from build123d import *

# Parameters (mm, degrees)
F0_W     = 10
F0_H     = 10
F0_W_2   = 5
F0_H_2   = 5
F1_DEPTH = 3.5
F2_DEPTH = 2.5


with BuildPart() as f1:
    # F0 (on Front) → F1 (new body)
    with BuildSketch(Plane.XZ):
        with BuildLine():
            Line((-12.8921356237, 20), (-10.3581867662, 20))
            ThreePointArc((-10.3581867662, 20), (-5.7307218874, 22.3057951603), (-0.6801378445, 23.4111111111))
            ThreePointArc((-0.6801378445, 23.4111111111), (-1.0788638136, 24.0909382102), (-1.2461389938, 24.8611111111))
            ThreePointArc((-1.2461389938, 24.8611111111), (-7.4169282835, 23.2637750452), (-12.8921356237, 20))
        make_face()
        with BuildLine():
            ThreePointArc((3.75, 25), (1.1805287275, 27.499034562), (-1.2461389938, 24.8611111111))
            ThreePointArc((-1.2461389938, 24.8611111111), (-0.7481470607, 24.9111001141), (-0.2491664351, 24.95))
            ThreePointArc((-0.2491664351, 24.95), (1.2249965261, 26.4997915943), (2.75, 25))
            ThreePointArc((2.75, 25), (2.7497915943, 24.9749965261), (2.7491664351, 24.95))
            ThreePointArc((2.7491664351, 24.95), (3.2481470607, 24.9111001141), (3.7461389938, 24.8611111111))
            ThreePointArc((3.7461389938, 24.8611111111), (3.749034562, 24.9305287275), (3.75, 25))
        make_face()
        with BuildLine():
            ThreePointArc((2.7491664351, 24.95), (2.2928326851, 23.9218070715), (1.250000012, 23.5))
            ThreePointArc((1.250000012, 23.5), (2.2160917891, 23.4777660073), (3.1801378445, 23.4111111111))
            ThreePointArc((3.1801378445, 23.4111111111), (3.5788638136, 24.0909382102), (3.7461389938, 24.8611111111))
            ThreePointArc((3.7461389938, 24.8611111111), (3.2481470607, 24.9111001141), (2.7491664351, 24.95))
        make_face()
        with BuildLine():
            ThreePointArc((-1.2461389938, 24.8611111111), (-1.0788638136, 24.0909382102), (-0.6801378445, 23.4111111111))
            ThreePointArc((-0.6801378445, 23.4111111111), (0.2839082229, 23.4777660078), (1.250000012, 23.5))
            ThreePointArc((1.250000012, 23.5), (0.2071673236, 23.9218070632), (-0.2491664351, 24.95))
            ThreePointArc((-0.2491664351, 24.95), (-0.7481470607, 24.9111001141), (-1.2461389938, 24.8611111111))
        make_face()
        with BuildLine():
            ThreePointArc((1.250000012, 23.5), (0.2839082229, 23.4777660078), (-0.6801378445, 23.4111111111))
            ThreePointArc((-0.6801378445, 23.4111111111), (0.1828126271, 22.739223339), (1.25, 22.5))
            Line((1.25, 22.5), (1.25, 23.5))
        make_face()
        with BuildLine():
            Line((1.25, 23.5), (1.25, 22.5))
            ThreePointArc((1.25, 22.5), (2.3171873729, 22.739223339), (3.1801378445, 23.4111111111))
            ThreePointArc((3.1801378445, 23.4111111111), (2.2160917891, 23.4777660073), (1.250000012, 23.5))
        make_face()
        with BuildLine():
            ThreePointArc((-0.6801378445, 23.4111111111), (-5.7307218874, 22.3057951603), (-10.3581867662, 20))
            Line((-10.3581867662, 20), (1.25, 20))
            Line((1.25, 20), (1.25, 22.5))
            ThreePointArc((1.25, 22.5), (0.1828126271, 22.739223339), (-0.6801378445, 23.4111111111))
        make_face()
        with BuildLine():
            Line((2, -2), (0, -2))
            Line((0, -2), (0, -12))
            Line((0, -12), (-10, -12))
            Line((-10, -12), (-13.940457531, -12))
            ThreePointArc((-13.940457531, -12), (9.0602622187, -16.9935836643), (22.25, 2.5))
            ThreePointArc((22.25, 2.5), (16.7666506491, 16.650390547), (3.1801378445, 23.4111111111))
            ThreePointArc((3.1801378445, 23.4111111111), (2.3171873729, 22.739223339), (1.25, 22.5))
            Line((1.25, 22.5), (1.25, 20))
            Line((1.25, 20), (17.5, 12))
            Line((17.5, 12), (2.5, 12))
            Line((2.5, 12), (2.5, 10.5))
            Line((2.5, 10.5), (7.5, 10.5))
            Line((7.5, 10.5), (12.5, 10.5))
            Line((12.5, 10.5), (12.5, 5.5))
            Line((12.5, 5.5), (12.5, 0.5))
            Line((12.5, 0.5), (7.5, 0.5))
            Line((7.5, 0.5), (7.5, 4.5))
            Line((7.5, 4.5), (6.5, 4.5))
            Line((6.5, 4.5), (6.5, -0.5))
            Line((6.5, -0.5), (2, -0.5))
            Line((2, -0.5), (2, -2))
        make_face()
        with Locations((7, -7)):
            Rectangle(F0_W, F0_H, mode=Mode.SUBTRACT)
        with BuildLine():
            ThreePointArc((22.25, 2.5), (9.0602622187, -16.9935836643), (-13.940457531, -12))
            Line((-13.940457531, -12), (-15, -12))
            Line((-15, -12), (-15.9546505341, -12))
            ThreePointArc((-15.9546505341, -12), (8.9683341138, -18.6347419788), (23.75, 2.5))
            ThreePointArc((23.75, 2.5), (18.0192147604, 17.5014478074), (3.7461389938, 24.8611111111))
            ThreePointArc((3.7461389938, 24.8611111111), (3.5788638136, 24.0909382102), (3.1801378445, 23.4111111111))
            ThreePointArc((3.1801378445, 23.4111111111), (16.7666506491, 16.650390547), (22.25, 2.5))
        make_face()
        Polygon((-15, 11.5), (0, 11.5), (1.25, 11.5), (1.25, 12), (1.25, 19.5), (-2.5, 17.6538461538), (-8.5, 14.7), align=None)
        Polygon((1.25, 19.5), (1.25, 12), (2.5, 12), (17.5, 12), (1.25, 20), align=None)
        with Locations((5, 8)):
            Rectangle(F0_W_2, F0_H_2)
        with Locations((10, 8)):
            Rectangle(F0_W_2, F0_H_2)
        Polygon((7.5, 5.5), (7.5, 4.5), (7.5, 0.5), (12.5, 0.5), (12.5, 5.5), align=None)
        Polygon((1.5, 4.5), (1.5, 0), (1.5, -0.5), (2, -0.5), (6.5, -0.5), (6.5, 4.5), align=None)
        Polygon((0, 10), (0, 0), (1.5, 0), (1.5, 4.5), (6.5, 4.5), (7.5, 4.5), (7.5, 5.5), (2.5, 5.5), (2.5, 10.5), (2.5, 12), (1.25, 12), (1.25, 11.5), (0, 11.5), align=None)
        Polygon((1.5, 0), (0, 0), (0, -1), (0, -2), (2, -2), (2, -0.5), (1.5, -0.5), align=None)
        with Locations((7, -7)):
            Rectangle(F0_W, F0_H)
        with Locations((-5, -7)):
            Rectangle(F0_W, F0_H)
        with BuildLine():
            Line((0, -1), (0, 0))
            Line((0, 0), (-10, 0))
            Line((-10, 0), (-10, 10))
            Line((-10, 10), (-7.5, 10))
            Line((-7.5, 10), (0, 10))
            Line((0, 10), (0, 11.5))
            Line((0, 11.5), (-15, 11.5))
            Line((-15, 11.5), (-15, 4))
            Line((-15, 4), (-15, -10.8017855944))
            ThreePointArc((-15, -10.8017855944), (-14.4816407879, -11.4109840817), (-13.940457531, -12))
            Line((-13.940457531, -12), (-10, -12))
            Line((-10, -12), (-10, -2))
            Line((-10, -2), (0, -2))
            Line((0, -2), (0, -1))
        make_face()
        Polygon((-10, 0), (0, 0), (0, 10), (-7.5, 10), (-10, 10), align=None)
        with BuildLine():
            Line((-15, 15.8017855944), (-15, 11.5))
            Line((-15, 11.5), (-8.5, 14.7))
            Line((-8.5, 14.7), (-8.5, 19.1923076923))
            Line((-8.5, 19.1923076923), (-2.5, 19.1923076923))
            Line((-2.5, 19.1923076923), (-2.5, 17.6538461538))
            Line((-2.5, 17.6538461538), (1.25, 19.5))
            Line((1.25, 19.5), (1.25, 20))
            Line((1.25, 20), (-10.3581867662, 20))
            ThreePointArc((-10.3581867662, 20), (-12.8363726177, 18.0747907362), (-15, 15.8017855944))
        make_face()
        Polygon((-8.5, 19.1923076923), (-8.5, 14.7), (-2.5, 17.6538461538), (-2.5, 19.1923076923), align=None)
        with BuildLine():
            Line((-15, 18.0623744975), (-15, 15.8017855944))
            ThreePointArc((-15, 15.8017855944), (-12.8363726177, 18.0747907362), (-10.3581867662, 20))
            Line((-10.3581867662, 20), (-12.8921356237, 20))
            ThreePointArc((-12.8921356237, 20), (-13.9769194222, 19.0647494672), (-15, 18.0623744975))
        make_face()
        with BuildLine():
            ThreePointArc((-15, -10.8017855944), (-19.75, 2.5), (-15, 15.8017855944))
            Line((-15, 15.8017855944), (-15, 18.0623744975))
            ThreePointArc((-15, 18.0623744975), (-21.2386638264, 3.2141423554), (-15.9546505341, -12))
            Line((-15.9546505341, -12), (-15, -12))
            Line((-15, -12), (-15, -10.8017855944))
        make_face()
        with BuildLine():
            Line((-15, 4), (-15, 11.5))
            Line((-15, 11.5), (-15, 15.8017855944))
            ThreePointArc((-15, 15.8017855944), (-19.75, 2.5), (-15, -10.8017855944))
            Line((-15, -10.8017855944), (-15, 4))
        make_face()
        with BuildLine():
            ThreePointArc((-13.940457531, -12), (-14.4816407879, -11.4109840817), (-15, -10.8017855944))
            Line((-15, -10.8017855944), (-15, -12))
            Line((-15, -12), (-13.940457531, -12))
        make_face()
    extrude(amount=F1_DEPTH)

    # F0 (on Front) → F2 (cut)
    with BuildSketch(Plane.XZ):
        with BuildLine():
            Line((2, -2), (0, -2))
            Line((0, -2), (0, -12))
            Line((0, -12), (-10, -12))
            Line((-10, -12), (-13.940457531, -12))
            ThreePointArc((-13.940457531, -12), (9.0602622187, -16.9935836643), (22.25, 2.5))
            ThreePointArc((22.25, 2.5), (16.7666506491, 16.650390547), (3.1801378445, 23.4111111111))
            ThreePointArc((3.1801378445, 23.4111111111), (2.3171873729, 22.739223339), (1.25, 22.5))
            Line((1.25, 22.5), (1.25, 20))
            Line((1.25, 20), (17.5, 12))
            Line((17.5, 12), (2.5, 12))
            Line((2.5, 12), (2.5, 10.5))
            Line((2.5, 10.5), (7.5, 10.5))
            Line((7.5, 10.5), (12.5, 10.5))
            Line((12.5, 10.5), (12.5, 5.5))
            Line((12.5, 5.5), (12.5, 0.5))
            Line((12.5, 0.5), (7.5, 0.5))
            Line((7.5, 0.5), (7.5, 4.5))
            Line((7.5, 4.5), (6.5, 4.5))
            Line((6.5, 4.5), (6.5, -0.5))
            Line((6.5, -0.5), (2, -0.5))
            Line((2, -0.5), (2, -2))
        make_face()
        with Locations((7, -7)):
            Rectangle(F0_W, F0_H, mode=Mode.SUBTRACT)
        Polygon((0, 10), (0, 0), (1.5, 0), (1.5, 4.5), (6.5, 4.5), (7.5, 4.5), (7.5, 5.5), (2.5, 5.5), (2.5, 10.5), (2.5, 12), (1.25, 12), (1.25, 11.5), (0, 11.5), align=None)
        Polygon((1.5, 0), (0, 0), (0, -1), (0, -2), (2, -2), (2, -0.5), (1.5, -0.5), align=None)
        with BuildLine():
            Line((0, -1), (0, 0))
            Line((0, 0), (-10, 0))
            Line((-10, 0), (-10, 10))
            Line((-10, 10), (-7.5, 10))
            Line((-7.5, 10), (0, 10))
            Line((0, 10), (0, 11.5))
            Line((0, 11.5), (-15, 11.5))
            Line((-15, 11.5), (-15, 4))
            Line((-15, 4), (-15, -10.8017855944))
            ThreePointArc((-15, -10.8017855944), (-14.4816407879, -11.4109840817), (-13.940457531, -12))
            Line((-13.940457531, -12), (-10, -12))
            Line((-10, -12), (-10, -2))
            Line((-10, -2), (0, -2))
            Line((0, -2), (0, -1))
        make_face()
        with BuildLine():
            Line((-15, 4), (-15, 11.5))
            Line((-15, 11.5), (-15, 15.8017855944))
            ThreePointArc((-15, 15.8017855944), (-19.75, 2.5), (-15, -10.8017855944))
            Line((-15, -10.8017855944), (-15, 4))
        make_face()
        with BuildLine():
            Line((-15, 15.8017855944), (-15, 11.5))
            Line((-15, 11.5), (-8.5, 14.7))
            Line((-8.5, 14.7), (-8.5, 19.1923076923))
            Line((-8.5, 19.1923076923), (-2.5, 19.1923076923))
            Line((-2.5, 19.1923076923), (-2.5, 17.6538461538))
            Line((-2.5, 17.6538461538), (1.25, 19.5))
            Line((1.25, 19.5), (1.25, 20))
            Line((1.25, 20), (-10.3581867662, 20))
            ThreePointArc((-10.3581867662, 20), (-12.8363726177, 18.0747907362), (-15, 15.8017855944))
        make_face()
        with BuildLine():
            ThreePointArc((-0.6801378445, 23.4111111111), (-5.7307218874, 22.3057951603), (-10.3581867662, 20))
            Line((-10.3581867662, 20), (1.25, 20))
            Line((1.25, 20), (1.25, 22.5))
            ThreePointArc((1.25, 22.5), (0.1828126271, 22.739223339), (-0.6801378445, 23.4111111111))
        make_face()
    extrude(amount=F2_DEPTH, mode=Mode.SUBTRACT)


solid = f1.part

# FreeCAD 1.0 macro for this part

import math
import FreeCAD as App
import Part
import Sketcher
from FreeCAD import Vector

doc = App.newDocument("Part")
body = doc.addObject("PartDesign::Body", "Body")

# Sketch on XZ plane
sketch1 = body.newObject("Sketcher::SketchObject", "Sketch")
sketch1.AttachmentSupport = (doc.getObject("XZ_Plane"), [""])
sketch1.MapMode = "FlatFace"
sketch1.addGeometry([
    Part.ArcOfCircle(Part.Circle(Vector(1.25, 2.5, 0), Vector(0, 0, 1), 22.5), math.radians(128.94), math.radians(136.24)),  # 0
    Part.ArcOfCircle(Part.Circle(Vector(1.25, 2.5, 0), Vector(0, 0, 1), 22.5), math.radians(136), math.radians(220)),  # 1
    Part.ArcOfCircle(Part.Circle(Vector(1.25, 2.5, 0), Vector(0, 0, 1), 22.5), math.radians(-140), math.radians(84)),  # 2
    Part.ArcOfCircle(Part.Circle(Vector(1.25, 25, 0), Vector(0, 0, 1), 2.5), math.radians(-3.18), math.radians(0)),  # 3
    Part.ArcOfCircle(Part.Circle(Vector(1.25, 25, 0), Vector(0, 0, 1), 2.5), math.radians(0), math.radians(183)),  # 4
    Part.ArcOfCircle(Part.Circle(Vector(1.25, 2.5, 0), Vector(0, 0, 1), 22.5), math.radians(96), math.radians(129)),  # 5
    Part.ArcOfCircle(Part.Circle(Vector(1.25, 25, 0), Vector(0, 0, 1), 1.5), math.radians(-90), math.radians(-2)),  # 6
    Part.ArcOfCircle(Part.Circle(Vector(1.25, 25, 0), Vector(0, 0, 1), 1.5), math.radians(-178), math.radians(-90)),  # 7
    Part.ArcOfCircle(Part.Circle(Vector(1.25, 25, 0), Vector(0, 0, 1), 1.5), math.radians(0), math.radians(182)),  # 8
    Part.ArcOfCircle(Part.Circle(Vector(1.25, 25, 0), Vector(0, 0, 1), 1.5), math.radians(-1.91), math.radians(0)),  # 9
], False)
sketch1.addConstraint([
    Sketcher.Constraint("Tangent", 0, 2, 1, 1),
    Sketcher.Constraint("Tangent", 1, 2, 2, 1),
    Sketcher.Constraint("Coincident", 2, 2, 3, 1),
    Sketcher.Constraint("Tangent", 3, 2, 4, 1),
    Sketcher.Constraint("Coincident", 4, 2, 5, 1),
    Sketcher.Constraint("Tangent", 5, 2, 0, 1),
    Sketcher.Constraint("Tangent", 6, 1, 7, 2),
    Sketcher.Constraint("Tangent", 7, 1, 8, 2),
    Sketcher.Constraint("Tangent", 8, 1, 9, 2),
    Sketcher.Constraint("Tangent", 9, 1, 6, 2),
    Sketcher.Constraint("Coincident", 2, 3, 0, 3),
    Sketcher.Constraint("Coincident", 6, 3, 3, 3),
    Sketcher.Constraint("Equal", 3, 4),
    Sketcher.Constraint("Equal", 2, 5),
    Sketcher.Constraint("Equal", 6, 7),
    Sketcher.Constraint("Horizontal", 9, 3, 3, 2),
    Sketcher.Constraint("Horizontal", 2, 2, 4, 2),
    Sketcher.Constraint("Horizontal", 3, 2, 8, 1),
    Sketcher.Constraint("Horizontal", 7, 1, 9, 1),
    Sketcher.Constraint("Vertical", 9, 3, 6, 1),
    Sketcher.Constraint("Radius", 0, 22.5),
    Sketcher.Constraint("Radius", 3, 2.5),
    Sketcher.Constraint("Radius", 6, 1.5),
    Sketcher.Constraint("DistanceY", -1, 1, 3, 3, 25.0),
    Sketcher.Constraint("DistanceX", 0, 2, -1, 1, 15.0),
    Sketcher.Constraint("DistanceY", 1, 2, -1, 1, 12.0),
    Sketcher.Constraint("DistanceY", -1, 1, 5, 2, 20.0),
    Sketcher.Constraint("DistanceY", -1, 1, 0, 3, 2.5),
    Sketcher.Constraint("DistanceX", -1, 1, 0, 3, 1.25),
    Sketcher.Constraint("DistanceY", -1, 1, 7, 1, 24.95),
])
pad1 = body.newObject("PartDesign::Pad", "Pad")
pad1.Profile = sketch1
pad1.Length = 3.5

# Sketch on XZ plane
sketch2 = body.newObject("Sketcher::SketchObject", "Sketch001")
sketch2.AttachmentSupport = (doc.getObject("XZ_Plane"), [""])
sketch2.MapMode = "FlatFace"
sketch2.addGeometry([
    Part.ArcOfCircle(Part.Circle(Vector(1.2, 25, 0), Vector(0, 0, 1), 2.5), math.radians(-90), math.radians(-39)),  # 0
    Part.ArcOfCircle(Part.Circle(Vector(1.2, 25, 0), Vector(0, 0, 1), 2.5), math.radians(-141), math.radians(-90)),  # 1
    Part.ArcOfCircle(Part.Circle(Vector(1.2, 2.5, 0), Vector(0, 0, 1), 21), math.radians(95), math.radians(124)),  # 2
    Part.ArcOfCircle(Part.Circle(Vector(1.2, 2.5, 0), Vector(0, 0, 1), 21), math.radians(123.56), math.radians(140.7)),  # 3
    Part.ArcOfCircle(Part.Circle(Vector(1.2, 2.5, 0), Vector(0, 0, 1), 21), math.radians(141), math.radians(219)),  # 4
    Part.ArcOfCircle(Part.Circle(Vector(1.2, 2.5, 0), Vector(0, 0, 1), 21), math.radians(-140.7), math.radians(-136.33)),  # 5
    Part.ArcOfCircle(Part.Circle(Vector(1.2, 2.5, 0), Vector(0, 0, 1), 21), math.radians(-136), math.radians(85)),  # 6
    Part.LineSegment(Vector(0, -12, 0), Vector(-10, -12, 0)),  # 7
    Part.LineSegment(Vector(-10, -12, 0), Vector(-10, -2, 0)),  # 8
    Part.LineSegment(Vector(-10, -2, 0), Vector(0, -2, 0)),  # 9
    Part.LineSegment(Vector(0, -2, 0), Vector(0, -12, 0)),  # 10
    Part.LineSegment(Vector(2, -12, 0), Vector(2, -2, 0)),  # 11
    Part.LineSegment(Vector(2, -2, 0), Vector(12, -2, 0)),  # 12
    Part.LineSegment(Vector(12, -2, 0), Vector(12, -12, 0)),  # 13
    Part.LineSegment(Vector(12, -12, 0), Vector(2, -12, 0)),  # 14
    Part.LineSegment(Vector(6.5, -0.5, 0), Vector(1.5, -0.5, 0)),  # 15
    Part.LineSegment(Vector(1.5, -0.5, 0), Vector(1.5, 4.5, 0)),  # 16
    Part.LineSegment(Vector(1.5, 4.5, 0), Vector(6.5, 4.5, 0)),  # 17
    Part.LineSegment(Vector(6.5, 4.5, 0), Vector(6.5, -0.5, 0)),  # 18
    Part.LineSegment(Vector(0, 10, 0), Vector(0, 0, 0)),  # 19
    Part.LineSegment(Vector(0, 0, 0), Vector(-10, 0, 0)),  # 20
    Part.LineSegment(Vector(-10, 0, 0), Vector(-10, 10, 0)),  # 21
    Part.LineSegment(Vector(-10, 10, 0), Vector(0, 10, 0)),  # 22
    Part.LineSegment(Vector(7.5, 0.5, 0), Vector(7.5, 5.5, 0)),  # 23
    Part.LineSegment(Vector(7.5, 5.5, 0), Vector(2.5, 5.5, 0)),  # 24
    Part.LineSegment(Vector(2.5, 5.5, 0), Vector(2.5, 10.5, 0)),  # 25
    Part.LineSegment(Vector(2.5, 10.5, 0), Vector(12.5, 10.5, 0)),  # 26
    Part.LineSegment(Vector(12.5, 10.5, 0), Vector(12.5, 0.5, 0)),  # 27
    Part.LineSegment(Vector(12.5, 0.5, 0), Vector(7.5, 0.5, 0)),  # 28
    Part.LineSegment(Vector(1.2, 19.5, 0), Vector(1.2, 20, 0)),  # 29
    Part.LineSegment(Vector(1.2, 20, 0), Vector(17.5, 12, 0)),  # 30
    Part.LineSegment(Vector(17.5, 12, 0), Vector(1.2, 12, 0)),  # 31
    Part.LineSegment(Vector(1.2, 12, 0), Vector(1.2, 11.5, 0)),  # 32
    Part.LineSegment(Vector(1.2, 11.5, 0), Vector(-15, 11.5, 0)),  # 33
    Part.LineSegment(Vector(-15, 11.5, 0), Vector(-8.5, 14.7, 0)),  # 34
    Part.LineSegment(Vector(-8.5, 14.7, 0), Vector(-8.5, 19.2, 0)),  # 35
    Part.LineSegment(Vector(-8.5, 19.2, 0), Vector(-2.5, 19.2, 0)),  # 36
    Part.LineSegment(Vector(-2.5, 19.2, 0), Vector(-2.5, 17.7, 0)),  # 37
    Part.LineSegment(Vector(-2.5, 17.7, 0), Vector(1.2, 19.5, 0)),  # 38
], False)
sketch2.addConstraint([
    Sketcher.Constraint("Tangent", 0, 1, 1, 2),
    Sketcher.Constraint("Coincident", 1, 1, 2, 1),
    Sketcher.Constraint("Tangent", 2, 2, 3, 1),
    Sketcher.Constraint("Tangent", 3, 2, 4, 1),
    Sketcher.Constraint("Tangent", 4, 2, 5, 1),
    Sketcher.Constraint("Tangent", 5, 2, 6, 1),
    Sketcher.Constraint("Coincident", 6, 2, 0, 2),
    Sketcher.Constraint("Coincident", 7, 2, 8, 1),
    Sketcher.Constraint("Coincident", 8, 2, 9, 1),
    Sketcher.Constraint("Coincident", 9, 2, 10, 1),
    Sketcher.Constraint("Coincident", 10, 2, 7, 1),
    Sketcher.Constraint("Coincident", 11, 2, 12, 1),
    Sketcher.Constraint("Coincident", 12, 2, 13, 1),
    Sketcher.Constraint("Coincident", 13, 2, 14, 1),
    Sketcher.Constraint("Coincident", 14, 2, 11, 1),
    Sketcher.Constraint("Coincident", 15, 2, 16, 1),
    Sketcher.Constraint("Coincident", 16, 2, 17, 1),
    Sketcher.Constraint("Coincident", 17, 2, 18, 1),
    Sketcher.Constraint("Coincident", 18, 2, 15, 1),
    Sketcher.Constraint("Coincident", 19, 2, 20, 1),
    Sketcher.Constraint("Coincident", 20, 2, 21, 1),
    Sketcher.Constraint("Coincident", 21, 2, 22, 1),
    Sketcher.Constraint("Coincident", 22, 2, 19, 1),
    Sketcher.Constraint("Coincident", 23, 2, 24, 1),
    Sketcher.Constraint("Coincident", 24, 2, 25, 1),
    Sketcher.Constraint("Coincident", 25, 2, 26, 1),
    Sketcher.Constraint("Coincident", 26, 2, 27, 1),
    Sketcher.Constraint("Coincident", 27, 2, 28, 1),
    Sketcher.Constraint("Coincident", 28, 2, 23, 1),
    Sketcher.Constraint("Coincident", 29, 2, 30, 1),
    Sketcher.Constraint("Coincident", 30, 2, 31, 1),
    Sketcher.Constraint("Coincident", 31, 2, 32, 1),
    Sketcher.Constraint("Coincident", 32, 2, 33, 1),
    Sketcher.Constraint("Coincident", 33, 2, 34, 1),
    Sketcher.Constraint("Coincident", 34, 2, 35, 1),
    Sketcher.Constraint("Coincident", 35, 2, 36, 1),
    Sketcher.Constraint("Coincident", 36, 2, 37, 1),
    Sketcher.Constraint("Coincident", 37, 2, 38, 1),
    Sketcher.Constraint("Coincident", 38, 2, 29, 1),
    Sketcher.Constraint("Horizontal", 7),
    Sketcher.Constraint("Vertical", 8),
    Sketcher.Constraint("Horizontal", 9),
    Sketcher.Constraint("Vertical", 10),
    Sketcher.Constraint("Vertical", 11),
    Sketcher.Constraint("Horizontal", 12),
    Sketcher.Constraint("Vertical", 13),
    Sketcher.Constraint("Horizontal", 14),
    Sketcher.Constraint("Horizontal", 15),
    Sketcher.Constraint("Vertical", 16),
    Sketcher.Constraint("Horizontal", 17),
    Sketcher.Constraint("Vertical", 18),
    Sketcher.Constraint("Vertical", 19),
    Sketcher.Constraint("Horizontal", 20),
    Sketcher.Constraint("Vertical", 21),
    Sketcher.Constraint("Horizontal", 22),
    Sketcher.Constraint("Vertical", 23),
    Sketcher.Constraint("Horizontal", 24),
    Sketcher.Constraint("Vertical", 25),
    Sketcher.Constraint("Horizontal", 26),
    Sketcher.Constraint("Vertical", 27),
    Sketcher.Constraint("Horizontal", 28),
    Sketcher.Constraint("Vertical", 29),
    Sketcher.Constraint("Horizontal", 31),
    Sketcher.Constraint("Vertical", 32),
    Sketcher.Constraint("Horizontal", 33),
    Sketcher.Constraint("Vertical", 35),
    Sketcher.Constraint("Horizontal", 36),
    Sketcher.Constraint("Vertical", 37),
    Sketcher.Constraint("Coincident", 19, 2, -1, 1),
    Sketcher.Constraint("Coincident", 4, 3, 2, 3),
    Sketcher.Constraint("Coincident", 6, 3, 2, 3),
    Sketcher.Constraint("Equal", 0, 1),
    Sketcher.Constraint("PointOnObject", 9, 2, -2),
    Sketcher.Constraint("Parallel", 34, 38),
    Sketcher.Constraint("Horizontal", 1, 1, 6, 2),
    Sketcher.Constraint("Horizontal", 5, 2, 7, 2),
    Sketcher.Constraint("Horizontal", 9, 2, 11, 2),
    Sketcher.Constraint("Horizontal", 10, 2, 13, 2),
    Sketcher.Constraint("Horizontal", 2, 2, 29, 2),
    Sketcher.Constraint("Vertical", 6, 3, 0, 1),
    Sketcher.Constraint("Vertical", 3, 2, 4, 2),
    Sketcher.Constraint("Vertical", 8, 2, 20, 2),
    Sketcher.Constraint("Vertical", 0, 1, 29, 2),
    Sketcher.Constraint("Vertical", 29, 2, 31, 2),
    Sketcher.Constraint("Vertical", 4, 2, 33, 2),
    Sketcher.Constraint("Equal", 9, 12),
    Sketcher.Constraint("Equal", 17, 24),
    Sketcher.Constraint("Equal", 22, 26),
    Sketcher.Constraint("Equal", 24, 28),
    Sketcher.Constraint("Equal", 31, 33),
    Sketcher.Constraint("Equal", 26, 8),
    Sketcher.Constraint("Equal", 28, 16),
    Sketcher.Constraint("Equal", 13, 19),
    Sketcher.Constraint("Equal", 18, 23),
    Sketcher.Constraint("Equal", 23, 25),
    Sketcher.Constraint("Equal", 29, 32),
    Sketcher.Constraint("Radius", 2, 21.0),
    Sketcher.Constraint("Radius", 0, 2.5),
    Sketcher.Constraint("DistanceX", 7, 2, 7, 1, 10.0),
    Sketcher.Constraint("DistanceX", 36, 1, 36, 2, 6.0),
    Sketcher.Constraint("DistanceY", 29, 1, 29, 2, 0.5),
    Sketcher.Constraint("DistanceY", -1, 1, 0, 3, 25.0),
    Sketcher.Constraint("DistanceY", -1, 1, 2, 2, 20.0),
    Sketcher.Constraint("DistanceX", 3, 2, -1, 1, 15.0),
    Sketcher.Constraint("DistanceY", 5, 2, -1, 1, 12.0),
    Sketcher.Constraint("DistanceX", -1, 1, 11, 2, 2.0),
    Sketcher.Constraint("DistanceY", -1, 1, 30, 2, 12.0),
    Sketcher.Constraint("DistanceY", 3, 3, 0, 1, 20.0),
    Sketcher.Constraint("DistanceY", 15, 2, 5, 3, 3.0),
    Sketcher.Constraint("DistanceX", 17, 2, 23, 2, 1.0),
    Sketcher.Constraint("DistanceY", 17, 2, 23, 2, 1.0),
    Sketcher.Constraint("DistanceX", 26, 2, 30, 2, 5.0),
    Sketcher.Constraint("DistanceX", 31, 2, 31, 1, 16.25),
    Sketcher.Constraint("DistanceX", 34, 2, -1, 1, 8.5),
    Sketcher.Constraint("DistanceY", -1, 1, 34, 2, 14.7),
    Sketcher.Constraint("DistanceY", 37, 2, 37, 1, 1.538462),
])
pocket1 = body.newObject("PartDesign::Pocket", "Pocket")
pocket1.Profile = sketch2
pocket1.Length = 2.5
pocket1.Reversed = True

doc.recompute()
